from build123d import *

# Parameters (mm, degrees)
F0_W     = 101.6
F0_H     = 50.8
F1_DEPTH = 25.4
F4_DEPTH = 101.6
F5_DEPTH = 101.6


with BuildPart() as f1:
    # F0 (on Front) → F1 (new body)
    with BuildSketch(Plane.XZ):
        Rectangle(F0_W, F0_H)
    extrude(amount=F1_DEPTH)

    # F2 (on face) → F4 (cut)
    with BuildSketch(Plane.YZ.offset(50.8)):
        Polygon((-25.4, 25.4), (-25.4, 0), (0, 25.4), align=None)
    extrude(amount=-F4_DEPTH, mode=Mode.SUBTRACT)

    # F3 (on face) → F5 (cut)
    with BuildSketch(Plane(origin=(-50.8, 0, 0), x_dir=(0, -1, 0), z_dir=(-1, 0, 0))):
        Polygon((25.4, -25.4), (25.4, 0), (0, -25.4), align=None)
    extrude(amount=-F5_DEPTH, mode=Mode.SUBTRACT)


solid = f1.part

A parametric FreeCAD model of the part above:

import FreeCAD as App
import Part
import Sketcher
from FreeCAD import Vector
Q = App.Units.Quantity


def add_polygon(sketch, points):
    """Adds a closed chain of lines whose ends are joined by coincident constraints."""
    first, n = sketch.GeometryCount, len(points)
    for a, b in zip(points, points[1:] + points[:1]):
        sketch.addGeometry(Part.LineSegment(App.Vector(*a, 0), App.Vector(*b, 0)), False)
    for i in range(n):
        sketch.addConstraint(Sketcher.Constraint("Coincident", first + i, 2, first + (i + 1) % n, 1))

doc = App.newDocument("Part")
params = doc.addObject("Spreadsheet::Sheet", "Params")
for row, (alias, value) in enumerate([
    ("sketch1_width", "4 in"),
    ("sketch1_height", "2 in"),
    ("pad1_length", "1 in"),
    ("sketch2_width", "1 in"),
    ("pocket1_length", "4 in"),
    ("sketch3_width", "1 in"),
    ("pocket2_length", "4 in"),
], start=1):
    params.set(f"A{row}", alias)
    params.set(f"B{row}", "=" + value)
    params.setAlias(f"B{row}", alias)

body = doc.addObject("PartDesign::Body", "Body")

# Sketch on XZ plane
sketch1 = doc.addObject("Sketcher::SketchObject", "Sketch")
body.addObject(sketch1)
sketch1.AttachmentSupport = (doc.XZ_Plane, [""])
sketch1.MapMode = "FlatFace"
add_polygon(sketch1, [(-51, 25), (-51, -25), (51, -25), (51, 25)])  # lines 0-3
sketch1.addConstraint(Sketcher.Constraint("Vertical", 0))
sketch1.addConstraint(Sketcher.Constraint("Horizontal", 1))
sketch1.addConstraint(Sketcher.Constraint("Vertical", 2))
sketch1.addConstraint(Sketcher.Constraint("Horizontal", 3))
sketch1.addConstraint(Sketcher.Constraint("Symmetric", 0, 2, 2, 2, -1, 1))
sketch1.addConstraint(Sketcher.Constraint("DistanceX", 1, 1, 1, 2, Q("4 in")))
sketch1.addConstraint(Sketcher.Constraint("DistanceY", 0, 2, 0, 1, Q("2 in")))
sketch1.setExpression("Constraints[9]", "Params.sketch1_width")
sketch1.setExpression("Constraints[10]", "Params.sketch1_height")
pad1 = doc.addObject("PartDesign::Pad", "Pad")
body.addObject(pad1)
pad1.Profile = sketch1
pad1.setExpression("Length", "Params.pad1_length")

# Sketch on YZ plane
sketch2 = doc.addObject("Sketcher::SketchObject", "Sketch001")
body.addObject(sketch2)
sketch2.AttachmentSupport = (doc.YZ_Plane, [""])
sketch2.MapMode = "FlatFace"
sketch2.AttachmentOffset = App.Placement(Vector(0, 0, 2 * 25.4), App.Rotation())
add_polygon(sketch2, [(-25, 25), (-25, 0), (0, 25)])  # lines 0-2
sketch2.addConstraint(Sketcher.Constraint("Vertical", 0))
sketch2.addConstraint(Sketcher.Constraint("Horizontal", 2))
sketch2.addConstraint(Sketcher.Constraint("PointOnObject", 0, 2, -1))
sketch2.addConstraint(Sketcher.Constraint("PointOnObject", 1, 2, -2))
sketch2.addConstraint(Sketcher.Constraint("Equal", 2, 0))
sketch2.addConstraint(Sketcher.Constraint("DistanceX", 2, 2, 2, 1, Q("1 in")))
sketch2.setExpression("Constraints[8]", "Params.sketch2_width")
pocket1 = doc.addObject("PartDesign::Pocket", "Pocket")
body.addObject(pocket1)
pocket1.Profile = sketch2
pocket1.setExpression("Length", "Params.pocket1_length")

# Sketch on YZ plane
sketch3 = doc.addObject("Sketcher::SketchObject", "Sketch002")
body.addObject(sketch3)
sketch3.AttachmentSupport = (doc.YZ_Plane, [""])
sketch3.MapMode = "FlatFace"
sketch3.AttachmentOffset = App.Placement(Vector(0, 0, -2 * 25.4), App.Rotation())
add_polygon(sketch3, [(-25, -25), (-25, 0), (0, -25)])  # lines 0-2
sketch3.addConstraint(Sketcher.Constraint("Vertical", 0))
sketch3.addConstraint(Sketcher.Constraint("Horizontal", 2))
sketch3.addConstraint(Sketcher.Constraint("PointOnObject", 0, 2, -1))
sketch3.addConstraint(Sketcher.Constraint("PointOnObject", 1, 2, -2))
sketch3.addConstraint(Sketcher.Constraint("Equal", 2, 0))
sketch3.addConstraint(Sketcher.Constraint("DistanceX", 2, 2, 2, 1, Q("1 in")))
sketch3.setExpression("Constraints[8]", "Params.sketch3_width")
pocket2 = doc.addObject("PartDesign::Pocket", "Pocket001")
body.addObject(pocket2)
pocket2.Profile = sketch3
pocket2.setExpression("Length", "Params.pocket2_length")
pocket2.Reversed = True

doc.recompute()
